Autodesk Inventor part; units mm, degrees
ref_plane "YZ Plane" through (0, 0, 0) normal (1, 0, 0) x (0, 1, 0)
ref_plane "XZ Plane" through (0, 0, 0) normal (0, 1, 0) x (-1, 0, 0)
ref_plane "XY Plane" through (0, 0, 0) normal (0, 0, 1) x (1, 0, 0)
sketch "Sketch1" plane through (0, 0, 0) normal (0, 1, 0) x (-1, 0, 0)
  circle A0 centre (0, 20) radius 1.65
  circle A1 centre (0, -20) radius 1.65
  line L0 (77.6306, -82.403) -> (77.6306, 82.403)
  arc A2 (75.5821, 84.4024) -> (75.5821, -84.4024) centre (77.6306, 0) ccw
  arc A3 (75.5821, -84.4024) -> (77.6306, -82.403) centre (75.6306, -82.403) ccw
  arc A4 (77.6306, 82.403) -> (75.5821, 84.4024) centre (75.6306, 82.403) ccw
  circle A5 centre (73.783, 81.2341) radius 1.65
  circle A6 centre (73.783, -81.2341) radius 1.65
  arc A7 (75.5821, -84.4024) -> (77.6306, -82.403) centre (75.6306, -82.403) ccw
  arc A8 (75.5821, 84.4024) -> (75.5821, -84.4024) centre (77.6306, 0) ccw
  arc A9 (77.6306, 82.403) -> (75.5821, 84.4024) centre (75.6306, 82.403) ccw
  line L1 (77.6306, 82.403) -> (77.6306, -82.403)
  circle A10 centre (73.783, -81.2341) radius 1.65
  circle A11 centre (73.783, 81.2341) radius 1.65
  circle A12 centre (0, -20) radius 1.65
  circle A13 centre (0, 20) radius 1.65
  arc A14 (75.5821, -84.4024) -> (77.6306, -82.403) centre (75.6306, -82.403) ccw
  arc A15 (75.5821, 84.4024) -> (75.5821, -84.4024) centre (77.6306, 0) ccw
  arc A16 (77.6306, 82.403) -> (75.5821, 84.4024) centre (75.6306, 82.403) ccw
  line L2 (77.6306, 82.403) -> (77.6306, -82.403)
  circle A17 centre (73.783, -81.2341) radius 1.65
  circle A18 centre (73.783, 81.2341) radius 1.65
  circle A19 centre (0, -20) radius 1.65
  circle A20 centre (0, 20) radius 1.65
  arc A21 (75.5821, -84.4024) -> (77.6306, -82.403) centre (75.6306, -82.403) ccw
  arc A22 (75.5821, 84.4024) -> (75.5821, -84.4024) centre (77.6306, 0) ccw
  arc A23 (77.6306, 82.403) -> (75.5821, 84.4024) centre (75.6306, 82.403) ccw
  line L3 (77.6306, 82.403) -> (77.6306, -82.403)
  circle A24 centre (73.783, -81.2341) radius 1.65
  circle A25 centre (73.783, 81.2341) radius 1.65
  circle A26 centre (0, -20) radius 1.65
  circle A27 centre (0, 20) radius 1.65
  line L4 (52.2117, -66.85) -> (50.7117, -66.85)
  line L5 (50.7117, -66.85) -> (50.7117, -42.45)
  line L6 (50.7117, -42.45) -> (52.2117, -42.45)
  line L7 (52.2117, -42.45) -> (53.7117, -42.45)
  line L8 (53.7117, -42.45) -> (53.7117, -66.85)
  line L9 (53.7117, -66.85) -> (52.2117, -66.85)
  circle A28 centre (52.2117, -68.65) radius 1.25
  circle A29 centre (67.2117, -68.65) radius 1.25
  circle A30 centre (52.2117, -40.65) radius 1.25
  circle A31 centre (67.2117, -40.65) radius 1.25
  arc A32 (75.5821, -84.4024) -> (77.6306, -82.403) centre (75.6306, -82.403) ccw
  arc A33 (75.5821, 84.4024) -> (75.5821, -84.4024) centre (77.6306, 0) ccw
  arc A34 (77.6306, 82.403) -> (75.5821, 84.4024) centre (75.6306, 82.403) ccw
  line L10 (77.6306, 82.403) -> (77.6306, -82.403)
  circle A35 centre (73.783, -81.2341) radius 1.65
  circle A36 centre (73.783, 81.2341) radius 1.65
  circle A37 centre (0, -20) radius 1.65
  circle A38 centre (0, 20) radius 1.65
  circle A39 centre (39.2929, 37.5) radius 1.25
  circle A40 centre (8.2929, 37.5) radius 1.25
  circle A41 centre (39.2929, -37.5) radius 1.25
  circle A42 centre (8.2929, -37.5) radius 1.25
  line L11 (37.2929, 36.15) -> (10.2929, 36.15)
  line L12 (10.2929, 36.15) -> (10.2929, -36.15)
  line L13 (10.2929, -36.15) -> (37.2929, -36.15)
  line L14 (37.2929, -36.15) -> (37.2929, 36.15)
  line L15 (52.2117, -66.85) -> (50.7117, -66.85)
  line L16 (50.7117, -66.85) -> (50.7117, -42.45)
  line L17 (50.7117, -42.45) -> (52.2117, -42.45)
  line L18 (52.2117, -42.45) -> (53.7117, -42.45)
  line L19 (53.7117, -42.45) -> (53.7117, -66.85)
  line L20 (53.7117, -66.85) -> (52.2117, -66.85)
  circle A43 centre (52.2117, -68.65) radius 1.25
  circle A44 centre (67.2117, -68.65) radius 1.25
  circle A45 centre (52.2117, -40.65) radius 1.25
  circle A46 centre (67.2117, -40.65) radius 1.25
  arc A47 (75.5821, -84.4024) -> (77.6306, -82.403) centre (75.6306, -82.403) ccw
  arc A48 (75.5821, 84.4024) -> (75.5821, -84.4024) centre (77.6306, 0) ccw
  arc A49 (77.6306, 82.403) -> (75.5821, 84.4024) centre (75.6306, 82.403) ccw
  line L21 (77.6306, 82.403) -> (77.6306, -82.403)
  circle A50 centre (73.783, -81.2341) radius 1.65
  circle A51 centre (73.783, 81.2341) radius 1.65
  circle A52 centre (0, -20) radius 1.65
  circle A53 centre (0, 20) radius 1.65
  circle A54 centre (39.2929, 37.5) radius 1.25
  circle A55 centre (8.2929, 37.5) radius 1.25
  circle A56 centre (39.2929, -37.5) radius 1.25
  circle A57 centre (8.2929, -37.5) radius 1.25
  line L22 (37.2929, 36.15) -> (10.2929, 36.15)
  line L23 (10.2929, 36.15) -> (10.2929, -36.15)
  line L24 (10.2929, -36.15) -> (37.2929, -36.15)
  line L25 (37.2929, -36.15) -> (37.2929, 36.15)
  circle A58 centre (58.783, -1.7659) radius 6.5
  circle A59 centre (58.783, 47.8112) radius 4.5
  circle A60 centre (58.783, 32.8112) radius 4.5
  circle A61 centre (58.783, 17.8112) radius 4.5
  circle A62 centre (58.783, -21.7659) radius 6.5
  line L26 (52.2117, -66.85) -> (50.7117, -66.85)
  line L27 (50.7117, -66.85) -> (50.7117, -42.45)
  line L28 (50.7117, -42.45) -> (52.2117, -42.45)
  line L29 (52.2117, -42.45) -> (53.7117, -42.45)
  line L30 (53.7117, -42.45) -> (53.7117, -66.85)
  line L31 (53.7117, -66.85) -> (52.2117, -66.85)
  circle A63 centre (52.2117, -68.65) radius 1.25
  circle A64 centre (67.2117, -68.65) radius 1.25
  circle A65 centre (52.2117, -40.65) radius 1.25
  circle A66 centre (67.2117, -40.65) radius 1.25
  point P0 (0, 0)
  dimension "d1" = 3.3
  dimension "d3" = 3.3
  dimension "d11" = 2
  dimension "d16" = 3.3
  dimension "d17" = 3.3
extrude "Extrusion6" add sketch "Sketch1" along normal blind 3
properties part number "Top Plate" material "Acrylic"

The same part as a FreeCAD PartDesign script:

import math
import FreeCAD as App
import Part
import Sketcher

V = App.Vector


def add_polygon(sketch, points):
    """Adds a closed chain of lines whose ends are joined by coincident constraints."""
    first, n = sketch.GeometryCount, len(points)
    for a, b in zip(points, points[1:] + points[:1]):
        sketch.addGeometry(Part.LineSegment(App.Vector(*a, 0), App.Vector(*b, 0)), False)
    for i in range(n):
        sketch.addConstraint(Sketcher.Constraint("Coincident", first + i, 2, first + (i + 1) % n, 1))

doc = App.newDocument("Part")
body = doc.addObject("PartDesign::Body", "Body")

# Sketch on XZ plane
sketch1 = doc.addObject("Sketcher::SketchObject", "Sketch")
body.addObject(sketch1)
sketch1.AttachmentSupport = (doc.XZ_Plane, [""])
sketch1.MapMode = "FlatFace"
sketch1.addGeometry(Part.ArcOfCircle(Part.Circle(V(-75.6, -82.4, 0), V(0, 0, 1), 2), math.radians(180), math.radians(271)), False)  # 0
sketch1.addGeometry(Part.LineSegment(V(-77.6, -82.4, 0), V(-77.6, 82.4, 0)), False)  # 1
sketch1.addGeometry(Part.ArcOfCircle(Part.Circle(V(-75.6, 82.4, 0), V(0, 0, 1), 2), math.radians(89), math.radians(180)), False)  # 2
sketch1.addGeometry(Part.ArcOfCircle(Part.Circle(V(-77.6, 0, 0), V(0, 0, 1), 84.4), math.radians(-89), math.radians(89)), False)  # 3
sketch1.addGeometry(Part.Circle(V(-8.3, -37.5, 0), V(0, 0, 1), 1.2), False)  # 4
sketch1.addGeometry(Part.Circle(V(0, -20, 0), V(0, 0, 1), 1.6), False)  # 5
add_polygon(sketch1, [(-10.3, 36.1), (-37.3, 36.1), (-37.3, -36.1), (-10.3, -36.1)])  # lines 6-9
sketch1.addGeometry(Part.Circle(V(-52.2, -68.7, 0), V(0, 0, 1), 1.2), False)  # 10
add_polygon(sketch1, [(-53.7, -66.8), (-50.7, -66.8), (-50.7, -42.5), (-53.7, -42.5)])  # lines 11-14
sketch1.addGeometry(Part.Circle(V(-73.8, -81.2, 0), V(0, 0, 1), 1.6), False)  # 15
sketch1.addGeometry(Part.Circle(V(-67.2, -68.7, 0), V(0, 0, 1), 1.2), False)  # 16
sketch1.addGeometry(Part.Circle(V(-39.3, -37.5, 0), V(0, 0, 1), 1.2), False)  # 17
sketch1.addGeometry(Part.Circle(V(-52.2, -40.6, 0), V(0, 0, 1), 1.2), False)  # 18
sketch1.addGeometry(Part.Circle(V(-58.8, -21.8, 0), V(0, 0, 1), 6.5), False)  # 19
sketch1.addGeometry(Part.Circle(V(-67.2, -40.6, 0), V(0, 0, 1), 1.2), False)  # 20
sketch1.addGeometry(Part.Circle(V(-58.8, -1.8, 0), V(0, 0, 1), 6.5), False)  # 21
sketch1.addGeometry(Part.Circle(V(0, 20, 0), V(0, 0, 1), 1.6), False)  # 22
sketch1.addGeometry(Part.Circle(V(-8.3, 37.5, 0), V(0, 0, 1), 1.2), False)  # 23
sketch1.addGeometry(Part.Circle(V(-39.3, 37.5, 0), V(0, 0, 1), 1.2), False)  # 24
sketch1.addGeometry(Part.Circle(V(-58.8, 17.8, 0), V(0, 0, 1), 4.5), False)  # 25
sketch1.addGeometry(Part.Circle(V(-58.8, 32.8, 0), V(0, 0, 1), 4.5), False)  # 26
sketch1.addGeometry(Part.Circle(V(-58.8, 47.8, 0), V(0, 0, 1), 4.5), False)  # 27
sketch1.addGeometry(Part.Circle(V(-73.8, 81.2, 0), V(0, 0, 1), 1.6), False)  # 28
sketch1.addConstraint(Sketcher.Constraint("Tangent", 0, 1, 1, 1))
sketch1.addConstraint(Sketcher.Constraint("Tangent", 1, 2, 2, 2))
sketch1.addConstraint(Sketcher.Constraint("Tangent", 2, 1, 3, 2))
sketch1.addConstraint(Sketcher.Constraint("Tangent", 3, 1, 0, 2))
sketch1.addConstraint(Sketcher.Constraint("Vertical", 1))
sketch1.addConstraint(Sketcher.Constraint("Horizontal", 6))
sketch1.addConstraint(Sketcher.Constraint("Vertical", 7))
sketch1.addConstraint(Sketcher.Constraint("Horizontal", 8))
sketch1.addConstraint(Sketcher.Constraint("Vertical", 9))
sketch1.addConstraint(Sketcher.Constraint("Horizontal", 11))
sketch1.addConstraint(Sketcher.Constraint("Vertical", 12))
sketch1.addConstraint(Sketcher.Constraint("Horizontal", 13))
sketch1.addConstraint(Sketcher.Constraint("Vertical", 14))
sketch1.addConstraint(Sketcher.Constraint("Equal", 0, 2))
sketch1.addConstraint(Sketcher.Constraint("Equal", 4, 10))
sketch1.addConstraint(Sketcher.Constraint("Equal", 5, 15))
sketch1.addConstraint(Sketcher.Constraint("Equal", 10, 16))
sketch1.addConstraint(Sketcher.Constraint("Equal", 16, 17))
sketch1.addConstraint(Sketcher.Constraint("Equal", 17, 18))
sketch1.addConstraint(Sketcher.Constraint("Equal", 18, 20))
sketch1.addConstraint(Sketcher.Constraint("Equal", 19, 21))
sketch1.addConstraint(Sketcher.Constraint("Equal", 15, 22))
sketch1.addConstraint(Sketcher.Constraint("Equal", 20, 23))
sketch1.addConstraint(Sketcher.Constraint("Equal", 23, 24))
sketch1.addConstraint(Sketcher.Constraint("Equal", 25, 26))
sketch1.addConstraint(Sketcher.Constraint("Equal", 26, 27))
sketch1.addConstraint(Sketcher.Constraint("Equal", 22, 28))
sketch1.addConstraint(Sketcher.Constraint("Symmetric", 5, 3, 22, 3, -1, 1))
sketch1.addConstraint(Sketcher.Constraint("Symmetric", 4, 3, 23, 3, -1))
sketch1.addConstraint(Sketcher.Constraint("Symmetric", 17, 3, 24, 3, -1))
sketch1.addConstraint(Sketcher.Constraint("Symmetric", 15, 3, 28, 3, -1))
sketch1.addConstraint(Sketcher.Constraint("PointOnObject", 3, 3, -1))
sketch1.addConstraint(Sketcher.Constraint("PointOnObject", 5, 3, -2))
sketch1.addConstraint(Sketcher.Constraint("Horizontal", 10, 3, 16, 3))
sketch1.addConstraint(Sketcher.Constraint("Horizontal", 4, 3, 17, 3))
sketch1.addConstraint(Sketcher.Constraint("Horizontal", 18, 3, 20, 3))
sketch1.addConstraint(Sketcher.Constraint("Vertical", 10, 3, 18, 3))
sketch1.addConstraint(Sketcher.Constraint("Vertical", 16, 3, 20, 3))
sketch1.addConstraint(Sketcher.Constraint("Vertical", 19, 3, 21, 3))
sketch1.addConstraint(Sketcher.Constraint("Vertical", 21, 3, 25, 3))
sketch1.addConstraint(Sketcher.Constraint("Vertical", 25, 3, 26, 3))
sketch1.addConstraint(Sketcher.Constraint("Vertical", 26, 3, 27, 3))
sketch1.addConstraint(Sketcher.Constraint("Vertical", 3, 3, 0, 1))
sketch1.addConstraint(Sketcher.Constraint("Radius", 0, 2.0))
sketch1.addConstraint(Sketcher.Constraint("Diameter", 5, 3.3))
sketch1.addConstraint(Sketcher.Constraint("Diameter", 19, 13.0))
sketch1.addConstraint(Sketcher.Constraint("Diameter", 25, 9.0))
sketch1.addConstraint(Sketcher.Constraint("DistanceX", 24, 3, 6, 2, 2.0))
sketch1.addConstraint(Sketcher.Constraint("DistanceX", 8, 2, 4, 3, 2.0))
sketch1.addConstraint(Sketcher.Constraint("Diameter", 4, 2.5))
sketch1.addConstraint(Sketcher.Constraint("DistanceX", 6, 2, 6, 1, 27.0))
sketch1.addConstraint(Sketcher.Constraint("DistanceX", 11, 1, 11, 2, 3.0))
sketch1.addConstraint(Sketcher.Constraint("DistanceY", 7, 2, 7, 1, 72.3))
sketch1.addConstraint(Sketcher.Constraint("DistanceY", 12, 1, 12, 2, 24.4))
sketch1.addConstraint(Sketcher.Constraint("DistanceY", 5, 3, -1, 1, 20.0))
sketch1.addConstraint(Sketcher.Constraint("DistanceX", 16, 3, 10, 3, 15.0))
sketch1.addConstraint(Sketcher.Constraint("DistanceY", 10, 3, 18, 3, 28.0))
sketch1.addConstraint(Sketcher.Constraint("DistanceY", 19, 3, 21, 3, 20.0))
sketch1.addConstraint(Sketcher.Constraint("DistanceY", 4, 3, 23, 3, 75.0))
sketch1.addConstraint(Sketcher.Constraint("DistanceY", 25, 3, 26, 3, 15.0))
sketch1.addConstraint(Sketcher.Constraint("DistanceY", 26, 3, 27, 3, 15.0))
sketch1.addConstraint(Sketcher.Constraint("DistanceX", 28, 3, 27, 3, 15.0))
sketch1.addConstraint(Sketcher.Constraint("Radius", 3, 84.4273))
sketch1.addConstraint(Sketcher.Constraint("DistanceY", 18, 3, 7, 2, 4.5))
sketch1.addConstraint(Sketcher.Constraint("DistanceX", 10, 3, 11, 2, 1.5))
sketch1.addConstraint(Sketcher.Constraint("DistanceY", 10, 3, 11, 2, 1.8))
sketch1.addConstraint(Sketcher.Constraint("DistanceY", 10, 3, -1, 1, 68.65))
sketch1.addConstraint(Sketcher.Constraint("DistanceX", 15, 3, 4, 3, 65.49))
sketch1.addConstraint(Sketcher.Constraint("DistanceX", 4, 3, -1, 1, 8.293))
sketch1.addConstraint(Sketcher.Constraint("DistanceY", 15, 3, -1, 1, 81.234))
sketch1.addConstraint(Sketcher.Constraint("DistanceY", 19, 3, -1, 1, 21.766))
sketch1.addConstraint(Sketcher.Constraint("DistanceX", 2, 1, -1, 1, 75.582))
sketch1.addConstraint(Sketcher.Constraint("DistanceX", 0, 3, 10, 3, 23.419))
sketch1.addConstraint(Sketcher.Constraint("DistanceY", 21, 3, 25, 3, 19.577))
pad1 = doc.addObject("PartDesign::Pad", "Pad")
body.addObject(pad1)
pad1.Profile = sketch1
pad1.Length = 3
pad1.Reversed = True

doc.recompute()
